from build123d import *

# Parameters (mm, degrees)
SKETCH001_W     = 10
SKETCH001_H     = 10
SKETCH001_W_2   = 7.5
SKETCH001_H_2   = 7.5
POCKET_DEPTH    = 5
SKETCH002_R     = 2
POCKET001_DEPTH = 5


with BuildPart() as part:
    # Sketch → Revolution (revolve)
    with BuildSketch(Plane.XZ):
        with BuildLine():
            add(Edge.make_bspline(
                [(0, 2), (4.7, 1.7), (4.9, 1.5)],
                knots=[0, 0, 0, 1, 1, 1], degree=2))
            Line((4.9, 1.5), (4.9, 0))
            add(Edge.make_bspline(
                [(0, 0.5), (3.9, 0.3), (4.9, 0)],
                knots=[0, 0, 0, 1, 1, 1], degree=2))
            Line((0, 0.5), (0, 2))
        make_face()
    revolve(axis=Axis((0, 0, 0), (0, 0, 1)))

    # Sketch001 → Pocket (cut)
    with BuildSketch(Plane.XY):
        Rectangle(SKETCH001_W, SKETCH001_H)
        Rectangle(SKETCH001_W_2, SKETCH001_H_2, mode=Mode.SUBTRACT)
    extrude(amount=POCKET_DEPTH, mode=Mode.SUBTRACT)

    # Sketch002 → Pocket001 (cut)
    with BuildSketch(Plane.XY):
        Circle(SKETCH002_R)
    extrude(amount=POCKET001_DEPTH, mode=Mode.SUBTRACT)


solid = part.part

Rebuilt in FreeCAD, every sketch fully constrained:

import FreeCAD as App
import Part
import Sketcher
Q = App.Units.Quantity


def add_polygon(sketch, points):
    """Adds a closed chain of lines whose ends are joined by coincident constraints."""
    first, n = sketch.GeometryCount, len(points)
    for a, b in zip(points, points[1:] + points[:1]):
        sketch.addGeometry(Part.LineSegment(App.Vector(*a, 0), App.Vector(*b, 0)), False)
    for i in range(n):
        sketch.addConstraint(Sketcher.Constraint("Coincident", first + i, 2, first + (i + 1) % n, 1))

doc = App.newDocument("Part")
body = doc.addObject("PartDesign::Body", "Body")

# Sketch on XZ plane
sketch1 = body.newObject("Sketcher::SketchObject", "Sketch")
sketch1.AttachmentSupport = (doc.getObject("XZ_Plane"), [""])
sketch1.MapMode = "FlatFace"
sketch1.addGeometry(Part.BSplineCurve([App.Vector(0, 2, 0), App.Vector(4.7, 1.7, 0), App.Vector(4.9, 1.5, 0)], [3, 3], [0, 1], False, 2, [1, 1, 1], False), False)
sketch1.addGeometry(Part.LineSegment(App.Vector(0, 2, 0), App.Vector(0, 0.5, 0)), False)
sketch1.addGeometry(Part.BSplineCurve([App.Vector(0, 0.5, 0), App.Vector(3.9, 0.3, 0), App.Vector(4.9, 0, 0)], [3, 3], [0, 1], False, 2, [1, 1, 1], False), False)
sketch1.addGeometry(Part.LineSegment(App.Vector(4.9, 0, 0), App.Vector(4.9, 1.5, 0)), False)
sketch1.addConstraint(Sketcher.Constraint("Block", 0))
sketch1.addConstraint(Sketcher.Constraint("Block", 2))
sketch1.addConstraint(Sketcher.Constraint("Coincident", 0, 1, 1, 1))
sketch1.addConstraint(Sketcher.Constraint("Coincident", 1, 2, 2, 1))
sketch1.addConstraint(Sketcher.Constraint("Coincident", 2, 2, 3, 1))
sketch1.addConstraint(Sketcher.Constraint("Coincident", 3, 2, 0, 2))
revolution = body.newObject("PartDesign::Revolution", "Revolution")
revolution.Profile = sketch1
revolution.ReferenceAxis = (sketch1, ["V_Axis"])
revolution.Angle = 360

# Sketch on XY plane
sketch2 = body.newObject("Sketcher::SketchObject", "Sketch001")
sketch2.AttachmentSupport = (doc.getObject("XY_Plane"), [""])
sketch2.MapMode = "FlatFace"
add_polygon(sketch2, [(-5, 5), (-5, -5), (5, -5), (5, 5)])  # lines 0-3
add_polygon(sketch2, [(4, -4), (-4, -4), (-4, 4), (4, 4)])  # lines 4-7
sketch2.addConstraint(Sketcher.Constraint("Vertical", 0))
sketch2.addConstraint(Sketcher.Constraint("Horizontal", 1))
sketch2.addConstraint(Sketcher.Constraint("Vertical", 2))
sketch2.addConstraint(Sketcher.Constraint("Horizontal", 3))
sketch2.addConstraint(Sketcher.Constraint("Horizontal", 4))
sketch2.addConstraint(Sketcher.Constraint("Vertical", 5))
sketch2.addConstraint(Sketcher.Constraint("Horizontal", 6))
sketch2.addConstraint(Sketcher.Constraint("Vertical", 7))
sketch2.addConstraint(Sketcher.Constraint("Symmetric", 0, 2, 2, 2, -1, 1))
sketch2.addConstraint(Sketcher.Constraint("Symmetric", 4, 2, 6, 2, -1, 1))
sketch2.addConstraint(Sketcher.Constraint("Equal", 3, 0))
sketch2.addConstraint(Sketcher.Constraint("Equal", 6, 5))
sketch2.addConstraint(Sketcher.Constraint("DistanceX", 1, 1, 1, 2, Q("10 mm")))
sketch2.addConstraint(Sketcher.Constraint("DistanceX", 4, 2, 4, 1, Q("7.5 mm")))
pocket1 = body.newObject("PartDesign::Pocket", "Pocket")
pocket1.Profile = sketch2
pocket1.Length = 5
pocket1.Reversed = True

# Sketch on XY plane
sketch3 = body.newObject("Sketcher::SketchObject", "Sketch002")
sketch3.AttachmentSupport = (doc.getObject("XY_Plane"), [""])
sketch3.MapMode = "FlatFace"
sketch3.addGeometry(Part.Circle(App.Vector(0, 0, 0), App.Vector(0, 0, 1), 2), False)
sketch3.addConstraint(Sketcher.Constraint("Coincident", 0, 3, -1, 1))
sketch3.addConstraint(Sketcher.Constraint("Diameter", 0, Q("4 mm")))
pocket2 = body.newObject("PartDesign::Pocket", "Pocket001")
pocket2.Profile = sketch3
pocket2.Length = 5
pocket2.Reversed = True

doc.recompute()
